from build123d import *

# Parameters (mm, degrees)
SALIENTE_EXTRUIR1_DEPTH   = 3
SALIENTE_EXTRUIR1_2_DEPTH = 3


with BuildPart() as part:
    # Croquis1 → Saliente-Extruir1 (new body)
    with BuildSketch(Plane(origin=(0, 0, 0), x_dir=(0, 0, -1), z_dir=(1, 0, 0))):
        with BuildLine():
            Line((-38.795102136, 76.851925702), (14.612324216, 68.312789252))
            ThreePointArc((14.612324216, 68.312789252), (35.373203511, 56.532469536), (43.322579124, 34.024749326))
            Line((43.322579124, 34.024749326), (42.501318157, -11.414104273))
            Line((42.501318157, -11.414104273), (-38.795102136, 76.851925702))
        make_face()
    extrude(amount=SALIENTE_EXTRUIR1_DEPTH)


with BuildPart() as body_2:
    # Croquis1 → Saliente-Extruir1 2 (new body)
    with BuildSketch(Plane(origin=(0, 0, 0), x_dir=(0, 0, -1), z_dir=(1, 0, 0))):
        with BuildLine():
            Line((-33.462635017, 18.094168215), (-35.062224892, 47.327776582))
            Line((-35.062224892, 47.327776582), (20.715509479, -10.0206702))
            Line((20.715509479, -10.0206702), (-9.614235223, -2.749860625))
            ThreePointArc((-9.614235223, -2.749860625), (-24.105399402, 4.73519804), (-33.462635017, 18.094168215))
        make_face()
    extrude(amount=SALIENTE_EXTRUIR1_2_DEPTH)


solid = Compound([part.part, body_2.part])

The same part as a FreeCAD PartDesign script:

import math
import FreeCAD as App
import Part
import Sketcher

doc = App.newDocument("Part")
body = doc.addObject("PartDesign::Body", "Body")

sketch1 = body.newObject("Sketcher::SketchObject", "Sketch")
sketch1.AttachmentSupport = (doc.getObject("YZ_Plane"), [""])
sketch1.MapMode = "FlatFace"
sketch1.addGeometry(Part.LineSegment(App.Vector(68, -15, 0), App.Vector(77, 39, 0)), False)
sketch1.addGeometry(Part.LineSegment(App.Vector(77, 39, 0), App.Vector(-11, -43, 0)), False)
sketch1.addGeometry(Part.LineSegment(App.Vector(-11, -43, 0), App.Vector(34, -43, 0)), False)
sketch1.addGeometry(Part.ArcOfCircle(Part.Circle(App.Vector(35, -9, 0), App.Vector(0, 0, 1), 34), math.radians(-91), math.radians(-9)), False)
sketch1.addConstraint(Sketcher.Constraint("Coincident", 0, 2, 1, 1))
sketch1.addConstraint(Sketcher.Constraint("Coincident", 1, 2, 2, 1))
sketch1.addConstraint(Sketcher.Constraint("Tangent", 2, 2, 3, 1))
sketch1.addConstraint(Sketcher.Constraint("Tangent", 3, 2, 0, 1))
sketch1.addConstraint(Sketcher.Constraint("Distance", 1, 120.0))
sketch1.addConstraint(Sketcher.Constraint("Radius", 3, 34.0995))
sketch1.addConstraint(Sketcher.Constraint("DistanceY", 1, 2, -1, 1, 42.501318))
sketch1.addConstraint(Sketcher.Constraint("DistanceX", -1, 1, 2, 2, 34.024749))
sketch1.addConstraint(Sketcher.Constraint("DistanceY", 2, 2, -1, 1, 43.322579))
sketch1.addConstraint(Sketcher.Constraint("DistanceX", -1, 1, 3, 2, 68.312789))
sketch1.addConstraint(Sketcher.Constraint("DistanceY", 3, 3, 0, 2, 48.02375))
pad1 = body.newObject("PartDesign::Pad", "Pad")
pad1.Profile = sketch1
pad1.Length = 3
body2 = doc.addObject("PartDesign::Body", "Body001")

sketch2 = body2.newObject("Sketcher::SketchObject", "Sketch001")
sketch2.AttachmentSupport = (doc.getObject("YZ_Plane001"), [""])
sketch2.MapMode = "FlatFace"
sketch2.addGeometry(Part.LineSegment(App.Vector(47, 35, 0), App.Vector(18, 33, 0)), False)
sketch2.addGeometry(Part.ArcOfCircle(Part.Circle(App.Vector(30, 2, 0), App.Vector(0, 0, 1), 34), math.radians(111), math.radians(167)), False)
sketch2.addGeometry(Part.LineSegment(App.Vector(-3, 10, 0), App.Vector(-10, -21, 0)), False)
sketch2.addGeometry(Part.LineSegment(App.Vector(-10, -21, 0), App.Vector(47, 35, 0)), False)
sketch2.addConstraint(Sketcher.Constraint("Coincident", 0, 2, 1, 1))
sketch2.addConstraint(Sketcher.Constraint("Tangent", 1, 2, 2, 1))
sketch2.addConstraint(Sketcher.Constraint("Coincident", 2, 2, 3, 1))
sketch2.addConstraint(Sketcher.Constraint("Coincident", 3, 2, 0, 1))
sketch2.addConstraint(Sketcher.Constraint("Distance", 3, 80.0))
sketch2.addConstraint(Sketcher.Constraint("Radius", 1, 34.0995))
sketch2.addConstraint(Sketcher.Constraint("DistanceY", 1, 2, 0, 2, 23.8484))
sketch2.addConstraint(Sketcher.Constraint("Distance", 0, 29.277338))
sketch2.addConstraint(Sketcher.Constraint("Distance", 2, 31.18907))
sketch2.addConstraint(Sketcher.Constraint("DistanceX", -1, 1, 0, 2, 18.094168))
sketch2.addConstraint(Sketcher.Constraint("DistanceX", 1, 2, -1, 1, 2.749861))
sketch2.addConstraint(Sketcher.Constraint("DistanceY", 2, 2, -1, 1, 20.715509))
pad2 = body2.newObject("PartDesign::Pad", "Pad001")
pad2.Profile = sketch2
pad2.Length = 3

doc.recompute()
